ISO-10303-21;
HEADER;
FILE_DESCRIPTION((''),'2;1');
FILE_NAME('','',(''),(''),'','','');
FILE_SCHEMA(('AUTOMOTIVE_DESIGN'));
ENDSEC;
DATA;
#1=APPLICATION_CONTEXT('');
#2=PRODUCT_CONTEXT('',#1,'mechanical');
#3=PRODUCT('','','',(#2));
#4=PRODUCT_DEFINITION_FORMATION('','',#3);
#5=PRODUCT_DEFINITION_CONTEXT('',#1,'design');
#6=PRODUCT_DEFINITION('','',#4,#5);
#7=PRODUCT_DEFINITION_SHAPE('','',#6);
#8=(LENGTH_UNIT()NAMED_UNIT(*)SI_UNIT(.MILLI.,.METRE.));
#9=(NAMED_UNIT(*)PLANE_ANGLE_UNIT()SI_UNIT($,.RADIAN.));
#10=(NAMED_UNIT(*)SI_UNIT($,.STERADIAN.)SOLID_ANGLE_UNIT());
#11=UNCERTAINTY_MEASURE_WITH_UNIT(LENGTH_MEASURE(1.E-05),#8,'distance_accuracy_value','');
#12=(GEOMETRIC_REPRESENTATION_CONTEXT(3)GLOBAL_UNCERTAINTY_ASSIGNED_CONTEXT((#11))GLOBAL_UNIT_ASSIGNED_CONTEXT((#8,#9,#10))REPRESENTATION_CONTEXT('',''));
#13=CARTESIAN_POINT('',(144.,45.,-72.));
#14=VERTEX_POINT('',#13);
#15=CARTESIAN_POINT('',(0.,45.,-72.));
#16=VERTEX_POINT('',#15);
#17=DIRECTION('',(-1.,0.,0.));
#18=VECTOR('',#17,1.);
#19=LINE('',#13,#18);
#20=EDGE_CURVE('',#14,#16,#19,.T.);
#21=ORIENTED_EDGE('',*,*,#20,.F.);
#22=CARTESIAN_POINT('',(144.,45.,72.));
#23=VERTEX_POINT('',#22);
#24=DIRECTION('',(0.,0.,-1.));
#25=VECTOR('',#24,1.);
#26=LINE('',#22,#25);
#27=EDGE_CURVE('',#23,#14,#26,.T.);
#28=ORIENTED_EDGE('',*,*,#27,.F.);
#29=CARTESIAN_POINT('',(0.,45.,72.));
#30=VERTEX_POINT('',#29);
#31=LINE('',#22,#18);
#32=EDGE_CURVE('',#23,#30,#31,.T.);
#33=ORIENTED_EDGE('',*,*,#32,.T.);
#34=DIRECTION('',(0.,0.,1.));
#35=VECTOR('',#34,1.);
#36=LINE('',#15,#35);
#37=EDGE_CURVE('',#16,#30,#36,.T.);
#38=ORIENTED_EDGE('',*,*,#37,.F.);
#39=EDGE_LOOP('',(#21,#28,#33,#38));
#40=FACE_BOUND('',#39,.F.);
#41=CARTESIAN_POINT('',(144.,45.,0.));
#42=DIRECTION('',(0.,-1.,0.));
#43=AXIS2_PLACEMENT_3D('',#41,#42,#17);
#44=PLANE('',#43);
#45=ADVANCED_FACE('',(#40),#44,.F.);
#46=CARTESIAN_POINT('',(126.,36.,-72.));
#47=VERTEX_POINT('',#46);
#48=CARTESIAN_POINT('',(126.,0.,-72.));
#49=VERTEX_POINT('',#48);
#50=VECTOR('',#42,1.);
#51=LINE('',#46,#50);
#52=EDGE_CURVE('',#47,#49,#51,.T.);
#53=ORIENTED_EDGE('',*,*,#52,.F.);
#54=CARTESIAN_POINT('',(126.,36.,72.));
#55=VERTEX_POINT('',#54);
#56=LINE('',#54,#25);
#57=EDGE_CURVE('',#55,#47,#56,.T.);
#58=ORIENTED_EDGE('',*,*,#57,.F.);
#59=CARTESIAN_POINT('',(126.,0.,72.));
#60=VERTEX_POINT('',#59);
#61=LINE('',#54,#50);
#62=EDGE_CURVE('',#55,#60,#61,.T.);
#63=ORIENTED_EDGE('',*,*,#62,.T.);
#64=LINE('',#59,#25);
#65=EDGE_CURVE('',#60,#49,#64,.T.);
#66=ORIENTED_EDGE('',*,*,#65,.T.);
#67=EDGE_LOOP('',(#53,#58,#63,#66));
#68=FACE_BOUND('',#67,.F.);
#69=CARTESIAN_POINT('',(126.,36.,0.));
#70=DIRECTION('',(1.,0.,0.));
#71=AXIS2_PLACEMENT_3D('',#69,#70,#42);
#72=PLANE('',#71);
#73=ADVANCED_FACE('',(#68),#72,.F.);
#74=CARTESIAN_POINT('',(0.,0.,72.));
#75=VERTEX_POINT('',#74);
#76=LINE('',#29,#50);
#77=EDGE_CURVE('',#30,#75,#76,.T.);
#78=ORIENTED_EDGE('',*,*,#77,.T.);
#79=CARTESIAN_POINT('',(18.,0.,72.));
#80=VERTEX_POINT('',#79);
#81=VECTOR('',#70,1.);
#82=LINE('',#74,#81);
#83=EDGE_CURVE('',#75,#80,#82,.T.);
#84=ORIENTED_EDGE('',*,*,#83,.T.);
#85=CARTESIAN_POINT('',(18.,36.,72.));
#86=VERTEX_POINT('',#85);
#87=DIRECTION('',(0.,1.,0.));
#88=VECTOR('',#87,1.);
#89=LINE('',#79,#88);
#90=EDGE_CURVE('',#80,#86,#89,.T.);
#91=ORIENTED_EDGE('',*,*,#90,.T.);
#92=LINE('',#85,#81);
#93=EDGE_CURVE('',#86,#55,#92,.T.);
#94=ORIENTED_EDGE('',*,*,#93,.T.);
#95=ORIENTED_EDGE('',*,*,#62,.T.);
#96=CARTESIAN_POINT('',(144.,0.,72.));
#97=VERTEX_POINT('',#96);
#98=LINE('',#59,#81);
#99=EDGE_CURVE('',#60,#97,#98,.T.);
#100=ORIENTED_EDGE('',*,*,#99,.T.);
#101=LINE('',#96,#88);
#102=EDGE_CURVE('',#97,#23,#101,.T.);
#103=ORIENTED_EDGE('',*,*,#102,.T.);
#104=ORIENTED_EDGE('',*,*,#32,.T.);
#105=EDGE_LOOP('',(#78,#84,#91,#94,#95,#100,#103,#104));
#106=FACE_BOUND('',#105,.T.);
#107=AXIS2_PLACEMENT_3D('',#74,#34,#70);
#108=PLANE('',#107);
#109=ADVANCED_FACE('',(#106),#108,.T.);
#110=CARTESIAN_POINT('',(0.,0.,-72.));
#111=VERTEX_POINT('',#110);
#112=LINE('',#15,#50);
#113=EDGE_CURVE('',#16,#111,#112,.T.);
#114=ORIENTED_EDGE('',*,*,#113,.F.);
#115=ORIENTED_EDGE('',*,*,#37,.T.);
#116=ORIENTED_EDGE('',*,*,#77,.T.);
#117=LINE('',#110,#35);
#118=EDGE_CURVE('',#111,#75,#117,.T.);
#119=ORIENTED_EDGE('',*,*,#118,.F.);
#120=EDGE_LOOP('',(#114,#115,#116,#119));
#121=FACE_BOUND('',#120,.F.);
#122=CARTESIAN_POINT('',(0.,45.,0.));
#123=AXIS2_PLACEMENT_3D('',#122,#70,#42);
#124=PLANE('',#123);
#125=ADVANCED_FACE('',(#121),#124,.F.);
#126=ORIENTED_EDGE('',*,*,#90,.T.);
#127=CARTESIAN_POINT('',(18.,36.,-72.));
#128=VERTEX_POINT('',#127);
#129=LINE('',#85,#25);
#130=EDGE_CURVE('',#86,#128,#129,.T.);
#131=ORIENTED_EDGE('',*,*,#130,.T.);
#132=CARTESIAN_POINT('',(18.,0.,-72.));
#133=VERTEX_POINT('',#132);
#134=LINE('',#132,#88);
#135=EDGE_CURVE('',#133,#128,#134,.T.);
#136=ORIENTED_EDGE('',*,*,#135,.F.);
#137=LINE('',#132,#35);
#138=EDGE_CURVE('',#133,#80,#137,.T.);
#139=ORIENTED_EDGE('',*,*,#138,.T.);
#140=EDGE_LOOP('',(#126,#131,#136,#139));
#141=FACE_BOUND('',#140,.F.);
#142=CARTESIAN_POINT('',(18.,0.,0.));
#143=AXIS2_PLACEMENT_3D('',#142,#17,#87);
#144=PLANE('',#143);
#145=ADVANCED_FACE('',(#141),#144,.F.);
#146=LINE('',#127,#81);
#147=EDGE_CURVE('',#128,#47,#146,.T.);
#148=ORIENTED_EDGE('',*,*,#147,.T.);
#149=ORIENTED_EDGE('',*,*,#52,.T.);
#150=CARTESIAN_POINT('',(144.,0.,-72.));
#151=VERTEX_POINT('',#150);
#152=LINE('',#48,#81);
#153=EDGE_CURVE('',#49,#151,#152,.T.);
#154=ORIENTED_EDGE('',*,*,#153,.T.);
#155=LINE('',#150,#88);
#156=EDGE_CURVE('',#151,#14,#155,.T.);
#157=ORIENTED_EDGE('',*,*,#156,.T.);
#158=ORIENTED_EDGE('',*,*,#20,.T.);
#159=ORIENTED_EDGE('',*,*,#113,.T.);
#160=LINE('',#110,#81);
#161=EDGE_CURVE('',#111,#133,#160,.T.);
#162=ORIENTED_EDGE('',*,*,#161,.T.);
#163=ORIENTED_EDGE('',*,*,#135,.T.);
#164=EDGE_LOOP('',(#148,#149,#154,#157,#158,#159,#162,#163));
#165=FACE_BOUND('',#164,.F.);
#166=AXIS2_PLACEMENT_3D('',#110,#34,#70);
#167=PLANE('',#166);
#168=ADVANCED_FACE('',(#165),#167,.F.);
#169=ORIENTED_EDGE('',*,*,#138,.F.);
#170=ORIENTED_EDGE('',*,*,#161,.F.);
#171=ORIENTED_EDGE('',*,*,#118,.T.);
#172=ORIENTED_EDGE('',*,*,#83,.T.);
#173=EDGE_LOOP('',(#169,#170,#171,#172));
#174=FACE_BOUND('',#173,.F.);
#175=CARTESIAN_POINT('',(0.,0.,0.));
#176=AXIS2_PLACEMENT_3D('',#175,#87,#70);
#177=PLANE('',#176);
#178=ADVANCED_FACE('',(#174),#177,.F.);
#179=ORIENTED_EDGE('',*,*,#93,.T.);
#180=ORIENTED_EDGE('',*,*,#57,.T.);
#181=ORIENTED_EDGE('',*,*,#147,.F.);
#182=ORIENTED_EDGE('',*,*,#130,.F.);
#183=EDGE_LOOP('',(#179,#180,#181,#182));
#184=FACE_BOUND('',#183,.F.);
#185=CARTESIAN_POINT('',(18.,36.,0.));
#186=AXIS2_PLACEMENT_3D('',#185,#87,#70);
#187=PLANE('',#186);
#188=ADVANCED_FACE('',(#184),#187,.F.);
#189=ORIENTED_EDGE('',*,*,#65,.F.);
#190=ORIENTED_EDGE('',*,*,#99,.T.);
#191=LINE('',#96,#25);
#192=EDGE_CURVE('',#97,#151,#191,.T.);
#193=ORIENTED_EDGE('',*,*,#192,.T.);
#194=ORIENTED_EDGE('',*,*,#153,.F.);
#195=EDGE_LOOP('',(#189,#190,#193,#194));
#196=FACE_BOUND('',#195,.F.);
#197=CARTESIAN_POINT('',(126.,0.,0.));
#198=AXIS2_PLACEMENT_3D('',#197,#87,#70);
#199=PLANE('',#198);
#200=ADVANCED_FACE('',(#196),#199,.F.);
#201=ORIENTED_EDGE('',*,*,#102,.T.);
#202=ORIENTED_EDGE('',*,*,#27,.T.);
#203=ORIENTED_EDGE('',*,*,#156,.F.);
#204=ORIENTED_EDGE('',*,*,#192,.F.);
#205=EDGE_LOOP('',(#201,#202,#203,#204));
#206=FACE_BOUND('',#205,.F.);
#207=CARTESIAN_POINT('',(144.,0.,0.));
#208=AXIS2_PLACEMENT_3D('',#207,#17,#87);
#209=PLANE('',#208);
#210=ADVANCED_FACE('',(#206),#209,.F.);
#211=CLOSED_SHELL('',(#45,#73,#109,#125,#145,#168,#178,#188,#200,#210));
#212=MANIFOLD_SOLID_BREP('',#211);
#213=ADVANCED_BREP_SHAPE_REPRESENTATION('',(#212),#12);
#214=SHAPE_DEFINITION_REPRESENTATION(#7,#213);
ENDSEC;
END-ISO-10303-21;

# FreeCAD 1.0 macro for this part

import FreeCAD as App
import Part
import Sketcher

V = App.Vector
Q = App.Units.Quantity


def add_polygon(sketch, points):
    """Adds a closed chain of lines whose ends are joined by coincident constraints."""
    first, n = sketch.GeometryCount, len(points)
    for a, b in zip(points, points[1:] + points[:1]):
        sketch.addGeometry(Part.LineSegment(App.Vector(*a, 0), App.Vector(*b, 0)), False)
    for i in range(n):
        sketch.addConstraint(Sketcher.Constraint("Coincident", first + i, 2, first + (i + 1) % n, 1))

doc = App.newDocument("Part")
params = doc.addObject("Spreadsheet::Sheet", "Params")
for row, (alias, value) in enumerate([
    ("sketch1_width", "144 mm"),
    ("sketch1_width2", "18 mm"),
    ("sketch1_height", "36 mm"),
    ("pad1_length", "144 mm"),
], start=1):
    params.set(f"A{row}", alias)
    params.set(f"B{row}", "=" + value)
    params.setAlias(f"B{row}", alias)

body = doc.addObject("PartDesign::Body", "Body")

sketch1 = body.newObject("Sketcher::SketchObject", "Sketch")
sketch1.AttachmentSupport = (doc.getObject("XY_Plane"), [""])
sketch1.MapMode = "FlatFace"
add_polygon(sketch1, [(144, 45), (0, 45), (0, 0), (18, 0), (18, 36), (126, 36), (126, 0), (144, 0)])
sketch1.addConstraint([
    Sketcher.Constraint("Horizontal", 0),
    Sketcher.Constraint("Vertical", 1),
    Sketcher.Constraint("Horizontal", 2),
    Sketcher.Constraint("Vertical", 3),
    Sketcher.Constraint("Horizontal", 4),
    Sketcher.Constraint("Vertical", 5),
    Sketcher.Constraint("Horizontal", 6),
    Sketcher.Constraint("Vertical", 7),
    Sketcher.Constraint("Coincident", 1, 2, -1, 1),
    Sketcher.Constraint("PointOnObject", 5, 2, -1),
    Sketcher.Constraint("Equal", 2, 6),
    Sketcher.Constraint("DistanceX", 0, 2, 0, 1, Q("144 mm")),
    Sketcher.Constraint("DistanceX", 2, 1, 2, 2, Q("18 mm")),
    Sketcher.Constraint("DistanceY", 3, 1, 3, 2, Q("36 mm")),
    Sketcher.Constraint("DistanceY", 3, 2, 0, 2, Q("9 mm")),
])
sketch1.setExpression("Constraints[19]", "Params.sketch1_width")
sketch1.setExpression("Constraints[20]", "Params.sketch1_width2")
sketch1.setExpression("Constraints[21]", "Params.sketch1_height")
pad1 = body.newObject("PartDesign::Pad", "Pad")
pad1.Profile = sketch1
pad1.setExpression("Length", "Params.pad1_length")
pad1.Midplane = True

doc.recompute()
